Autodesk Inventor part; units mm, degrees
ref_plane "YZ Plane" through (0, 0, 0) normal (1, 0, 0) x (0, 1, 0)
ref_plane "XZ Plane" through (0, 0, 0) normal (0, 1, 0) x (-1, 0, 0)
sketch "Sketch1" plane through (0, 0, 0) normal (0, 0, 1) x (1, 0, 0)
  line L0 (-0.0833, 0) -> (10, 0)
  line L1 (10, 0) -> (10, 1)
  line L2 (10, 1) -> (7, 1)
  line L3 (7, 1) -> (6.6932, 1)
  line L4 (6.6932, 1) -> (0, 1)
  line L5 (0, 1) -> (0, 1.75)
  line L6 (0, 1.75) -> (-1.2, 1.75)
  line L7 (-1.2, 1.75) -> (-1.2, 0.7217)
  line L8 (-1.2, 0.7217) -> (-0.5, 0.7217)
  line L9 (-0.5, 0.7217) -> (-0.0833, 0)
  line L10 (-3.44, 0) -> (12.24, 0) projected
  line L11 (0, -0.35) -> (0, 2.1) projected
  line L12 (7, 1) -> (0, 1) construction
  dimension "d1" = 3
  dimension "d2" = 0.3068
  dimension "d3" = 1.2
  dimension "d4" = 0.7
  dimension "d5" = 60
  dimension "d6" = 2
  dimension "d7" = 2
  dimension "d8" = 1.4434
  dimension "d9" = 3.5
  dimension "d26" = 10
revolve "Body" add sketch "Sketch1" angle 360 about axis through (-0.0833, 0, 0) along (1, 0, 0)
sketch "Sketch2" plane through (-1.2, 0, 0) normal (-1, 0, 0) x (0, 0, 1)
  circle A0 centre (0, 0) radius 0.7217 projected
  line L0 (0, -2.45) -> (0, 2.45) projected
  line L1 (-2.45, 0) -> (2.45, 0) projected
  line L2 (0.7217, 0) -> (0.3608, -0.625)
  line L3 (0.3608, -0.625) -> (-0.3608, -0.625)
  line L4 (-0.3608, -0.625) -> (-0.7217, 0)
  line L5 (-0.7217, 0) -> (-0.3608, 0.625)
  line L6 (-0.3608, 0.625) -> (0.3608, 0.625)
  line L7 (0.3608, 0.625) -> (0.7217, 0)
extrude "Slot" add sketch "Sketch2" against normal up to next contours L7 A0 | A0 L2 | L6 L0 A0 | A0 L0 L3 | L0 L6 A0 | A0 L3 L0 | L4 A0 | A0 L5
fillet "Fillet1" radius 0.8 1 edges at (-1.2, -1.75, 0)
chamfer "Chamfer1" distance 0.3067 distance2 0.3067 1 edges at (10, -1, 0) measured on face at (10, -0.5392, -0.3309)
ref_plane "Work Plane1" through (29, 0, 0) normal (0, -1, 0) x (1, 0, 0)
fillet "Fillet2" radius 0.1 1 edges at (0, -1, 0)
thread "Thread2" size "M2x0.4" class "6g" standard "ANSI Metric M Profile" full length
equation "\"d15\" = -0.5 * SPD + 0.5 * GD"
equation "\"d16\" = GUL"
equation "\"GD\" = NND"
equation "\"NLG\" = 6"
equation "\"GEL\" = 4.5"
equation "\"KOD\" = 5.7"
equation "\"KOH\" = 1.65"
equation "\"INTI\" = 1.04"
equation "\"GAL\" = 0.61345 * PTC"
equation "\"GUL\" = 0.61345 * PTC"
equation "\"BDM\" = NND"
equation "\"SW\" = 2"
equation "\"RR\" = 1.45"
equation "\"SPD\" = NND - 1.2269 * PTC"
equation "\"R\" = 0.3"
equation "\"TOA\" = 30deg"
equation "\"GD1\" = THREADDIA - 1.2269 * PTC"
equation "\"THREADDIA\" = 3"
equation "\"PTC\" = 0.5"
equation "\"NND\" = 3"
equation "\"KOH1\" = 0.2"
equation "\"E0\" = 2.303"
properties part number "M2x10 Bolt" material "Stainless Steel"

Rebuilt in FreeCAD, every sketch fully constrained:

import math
import FreeCAD as App
import Part
import Sketcher
Q = App.Units.Quantity


def edges_at(feature, points):
    """Names of the edges that pass closest to the given points."""
    edges = feature.Shape.Edges
    near = lambda p: min(range(len(edges)), key=lambda i: edges[i].distToShape(Part.Vertex(*p))[0])
    return sorted({f"Edge{near(p) + 1}" for p in points})


def add_polygon(sketch, points):
    """Adds a closed chain of lines whose ends are joined by coincident constraints."""
    first, n = sketch.GeometryCount, len(points)
    for a, b in zip(points, points[1:] + points[:1]):
        sketch.addGeometry(Part.LineSegment(App.Vector(*a, 0), App.Vector(*b, 0)), False)
    for i in range(n):
        sketch.addConstraint(Sketcher.Constraint("Coincident", first + i, 2, first + (i + 1) % n, 1))

doc = App.newDocument("Part")
body = doc.addObject("PartDesign::Body", "Body")

# Sketch on XY plane
sketch1 = body.newObject("Sketcher::SketchObject", "Sketch")
sketch1.AttachmentSupport = (doc.getObject("XY_Plane"), [""])
sketch1.MapMode = "FlatFace"
add_polygon(sketch1, [(-0.5, 0.7), (-0.1, 0), (10, 0), (10, 1), (0, 1), (0, 1.8), (-1.2, 1.8), (-1.2, 0.7)])  # lines 0-7
sketch1.addConstraint([
    Sketcher.Constraint("Horizontal", 1),
    Sketcher.Constraint("Vertical", 2),
    Sketcher.Constraint("Horizontal", 3),
    Sketcher.Constraint("Vertical", 4),
    Sketcher.Constraint("Horizontal", 5),
    Sketcher.Constraint("Vertical", 6),
    Sketcher.Constraint("Horizontal", 7),
    Sketcher.Constraint("PointOnObject", 0, 2, -1),
    Sketcher.Constraint("PointOnObject", 3, 2, -2),
    Sketcher.Constraint("DistanceX", 3, 2, 3, 1, Q("10 mm")),
    Sketcher.Constraint("DistanceX", 5, 2, 5, 1, Q("1.2 mm")),
    Sketcher.Constraint("DistanceX", 7, 1, 7, 2, Q("0.7 mm")),
    Sketcher.Constraint("DistanceY", 2, 1, 2, 2, Q("1 mm")),
    Sketcher.Constraint("DistanceY", 4, 1, 4, 2, Q("0.75 mm")),
    Sketcher.Constraint("DistanceX", 1, 1, 1, 2, Q("10.0833 mm")),
    Sketcher.Constraint("DistanceY", 6, 2, 6, 1, Q("1.0283 mm")),
])
revolution = body.newObject("PartDesign::Revolution", "Revolution")
revolution.Profile = sketch1
revolution.ReferenceAxis = (sketch1, ["H_Axis"])
revolution.Angle = 360

# Sketch on YZ plane
sketch2 = body.newObject("Sketcher::SketchObject", "Sketch001")
sketch2.AttachmentSupport = (doc.getObject("YZ_Plane"), [""])
sketch2.MapMode = "FlatFace"
sketch2.AttachmentOffset = App.Placement(App.Vector(0, 0, -1.2), App.Rotation())
sketch2.addGeometry([
    Part.LineSegment(App.Vector(0.6, 0.4, 0), App.Vector(0, 0.7, 0)),  # 0
    Part.ArcOfCircle(Part.Circle(App.Vector(0, 0, 0), App.Vector(0, 0, 1), 0.7), math.radians(30), math.radians(90)),  # 1
    Part.ArcOfCircle(Part.Circle(App.Vector(0, 0, 0), App.Vector(0, 0, 1), 0.7), math.radians(90), math.radians(150)),  # 2
    Part.LineSegment(App.Vector(0, 0.7, 0), App.Vector(-0.6, 0.4, 0)),  # 3
    Part.ArcOfCircle(Part.Circle(App.Vector(0, 0, 0), App.Vector(0, 0, 1), 0.7), math.radians(-30), math.radians(30)),  # 4
    Part.LineSegment(App.Vector(0.6, 0.4, 0), App.Vector(0.6, -0.4, 0)),  # 5
    Part.LineSegment(App.Vector(-0.6, 0.4, 0), App.Vector(-0.6, -0.4, 0)),  # 6
    Part.ArcOfCircle(Part.Circle(App.Vector(0, 0, 0), App.Vector(0, 0, 1), 0.7), math.radians(150), math.radians(210)),  # 7
    Part.LineSegment(App.Vector(-0.6, -0.4, 0), App.Vector(0, -0.7, 0)),  # 8
    Part.ArcOfCircle(Part.Circle(App.Vector(0, 0, 0), App.Vector(0, 0, 1), 0.7), math.radians(-150), math.radians(-90)),  # 9
    Part.ArcOfCircle(Part.Circle(App.Vector(0, 0, 0), App.Vector(0, 0, 1), 0.7), math.radians(-90), math.radians(-30)),  # 10
    Part.LineSegment(App.Vector(0, -0.7, 0), App.Vector(0.6, -0.4, 0)),  # 11
], False)
sketch2.addConstraint([
    Sketcher.Constraint("Coincident", 0, 1, 1, 1),
    Sketcher.Constraint("Coincident", 1, 2, 0, 2),
    Sketcher.Constraint("Coincident", 2, 1, 3, 1),
    Sketcher.Constraint("Coincident", 3, 2, 2, 2),
    Sketcher.Constraint("Coincident", 4, 1, 5, 2),
    Sketcher.Constraint("Coincident", 5, 1, 4, 2),
    Sketcher.Constraint("Coincident", 6, 1, 7, 1),
    Sketcher.Constraint("Coincident", 7, 2, 6, 2),
    Sketcher.Constraint("Coincident", 8, 1, 9, 1),
    Sketcher.Constraint("Coincident", 9, 2, 8, 2),
    Sketcher.Constraint("Coincident", 10, 1, 11, 1),
    Sketcher.Constraint("Coincident", 11, 2, 10, 2),
    Sketcher.Constraint("Vertical", 5),
    Sketcher.Constraint("Vertical", 6),
    Sketcher.Constraint("Coincident", 1, 3, -1, 1),
    Sketcher.Constraint("Coincident", 2, 3, -1, 1),
    Sketcher.Constraint("Coincident", 4, 3, -1, 1),
    Sketcher.Constraint("Coincident", 7, 3, -1, 1),
    Sketcher.Constraint("Coincident", 9, 3, -1, 1),
    Sketcher.Constraint("Coincident", 10, 3, -1, 1),
    Sketcher.Constraint("Coincident", 2, 1, 1, 2),
    Sketcher.Constraint("Coincident", 5, 1, 0, 1),
    Sketcher.Constraint("Coincident", 6, 1, 3, 2),
    Sketcher.Constraint("Coincident", 8, 1, 7, 2),
    Sketcher.Constraint("Coincident", 10, 1, 9, 2),
    Sketcher.Constraint("PointOnObject", 1, 2, -2),
    Sketcher.Constraint("PointOnObject", 9, 2, -2),
    Sketcher.Constraint("Parallel", 0, 8),
    Sketcher.Constraint("Parallel", 3, 11),
    Sketcher.Constraint("Radius", 1, Q("0.7217 mm")),
    Sketcher.Constraint("DistanceY", 5, 2, 5, 1, Q("0.7216 mm")),
])
pad1 = body.newObject("PartDesign::Pad", "Pad")
pad1.Profile = sketch2
pad1.Type = "UpToFirst"
doc.recompute()

fillet = body.newObject("PartDesign::Fillet", "Fillet")
fillet.Base = (pad1, edges_at(pad1, [(-1.2, -1.75, 0)]))
fillet.Radius = 0.8
doc.recompute()

chamfer = body.newObject("PartDesign::Chamfer", "Chamfer")
chamfer.Base = (fillet, edges_at(fillet, [(10, -1, 0)]))
chamfer.ChamferType = "Two distances"
chamfer.Size = 0.3067
chamfer.Size2 = 0.3067
doc.recompute()

fillet2 = body.newObject("PartDesign::Fillet", "Fillet001")
fillet2.Base = (chamfer, edges_at(chamfer, [(0, -1, 0)]))
fillet2.Radius = 0.1

doc.recompute()
